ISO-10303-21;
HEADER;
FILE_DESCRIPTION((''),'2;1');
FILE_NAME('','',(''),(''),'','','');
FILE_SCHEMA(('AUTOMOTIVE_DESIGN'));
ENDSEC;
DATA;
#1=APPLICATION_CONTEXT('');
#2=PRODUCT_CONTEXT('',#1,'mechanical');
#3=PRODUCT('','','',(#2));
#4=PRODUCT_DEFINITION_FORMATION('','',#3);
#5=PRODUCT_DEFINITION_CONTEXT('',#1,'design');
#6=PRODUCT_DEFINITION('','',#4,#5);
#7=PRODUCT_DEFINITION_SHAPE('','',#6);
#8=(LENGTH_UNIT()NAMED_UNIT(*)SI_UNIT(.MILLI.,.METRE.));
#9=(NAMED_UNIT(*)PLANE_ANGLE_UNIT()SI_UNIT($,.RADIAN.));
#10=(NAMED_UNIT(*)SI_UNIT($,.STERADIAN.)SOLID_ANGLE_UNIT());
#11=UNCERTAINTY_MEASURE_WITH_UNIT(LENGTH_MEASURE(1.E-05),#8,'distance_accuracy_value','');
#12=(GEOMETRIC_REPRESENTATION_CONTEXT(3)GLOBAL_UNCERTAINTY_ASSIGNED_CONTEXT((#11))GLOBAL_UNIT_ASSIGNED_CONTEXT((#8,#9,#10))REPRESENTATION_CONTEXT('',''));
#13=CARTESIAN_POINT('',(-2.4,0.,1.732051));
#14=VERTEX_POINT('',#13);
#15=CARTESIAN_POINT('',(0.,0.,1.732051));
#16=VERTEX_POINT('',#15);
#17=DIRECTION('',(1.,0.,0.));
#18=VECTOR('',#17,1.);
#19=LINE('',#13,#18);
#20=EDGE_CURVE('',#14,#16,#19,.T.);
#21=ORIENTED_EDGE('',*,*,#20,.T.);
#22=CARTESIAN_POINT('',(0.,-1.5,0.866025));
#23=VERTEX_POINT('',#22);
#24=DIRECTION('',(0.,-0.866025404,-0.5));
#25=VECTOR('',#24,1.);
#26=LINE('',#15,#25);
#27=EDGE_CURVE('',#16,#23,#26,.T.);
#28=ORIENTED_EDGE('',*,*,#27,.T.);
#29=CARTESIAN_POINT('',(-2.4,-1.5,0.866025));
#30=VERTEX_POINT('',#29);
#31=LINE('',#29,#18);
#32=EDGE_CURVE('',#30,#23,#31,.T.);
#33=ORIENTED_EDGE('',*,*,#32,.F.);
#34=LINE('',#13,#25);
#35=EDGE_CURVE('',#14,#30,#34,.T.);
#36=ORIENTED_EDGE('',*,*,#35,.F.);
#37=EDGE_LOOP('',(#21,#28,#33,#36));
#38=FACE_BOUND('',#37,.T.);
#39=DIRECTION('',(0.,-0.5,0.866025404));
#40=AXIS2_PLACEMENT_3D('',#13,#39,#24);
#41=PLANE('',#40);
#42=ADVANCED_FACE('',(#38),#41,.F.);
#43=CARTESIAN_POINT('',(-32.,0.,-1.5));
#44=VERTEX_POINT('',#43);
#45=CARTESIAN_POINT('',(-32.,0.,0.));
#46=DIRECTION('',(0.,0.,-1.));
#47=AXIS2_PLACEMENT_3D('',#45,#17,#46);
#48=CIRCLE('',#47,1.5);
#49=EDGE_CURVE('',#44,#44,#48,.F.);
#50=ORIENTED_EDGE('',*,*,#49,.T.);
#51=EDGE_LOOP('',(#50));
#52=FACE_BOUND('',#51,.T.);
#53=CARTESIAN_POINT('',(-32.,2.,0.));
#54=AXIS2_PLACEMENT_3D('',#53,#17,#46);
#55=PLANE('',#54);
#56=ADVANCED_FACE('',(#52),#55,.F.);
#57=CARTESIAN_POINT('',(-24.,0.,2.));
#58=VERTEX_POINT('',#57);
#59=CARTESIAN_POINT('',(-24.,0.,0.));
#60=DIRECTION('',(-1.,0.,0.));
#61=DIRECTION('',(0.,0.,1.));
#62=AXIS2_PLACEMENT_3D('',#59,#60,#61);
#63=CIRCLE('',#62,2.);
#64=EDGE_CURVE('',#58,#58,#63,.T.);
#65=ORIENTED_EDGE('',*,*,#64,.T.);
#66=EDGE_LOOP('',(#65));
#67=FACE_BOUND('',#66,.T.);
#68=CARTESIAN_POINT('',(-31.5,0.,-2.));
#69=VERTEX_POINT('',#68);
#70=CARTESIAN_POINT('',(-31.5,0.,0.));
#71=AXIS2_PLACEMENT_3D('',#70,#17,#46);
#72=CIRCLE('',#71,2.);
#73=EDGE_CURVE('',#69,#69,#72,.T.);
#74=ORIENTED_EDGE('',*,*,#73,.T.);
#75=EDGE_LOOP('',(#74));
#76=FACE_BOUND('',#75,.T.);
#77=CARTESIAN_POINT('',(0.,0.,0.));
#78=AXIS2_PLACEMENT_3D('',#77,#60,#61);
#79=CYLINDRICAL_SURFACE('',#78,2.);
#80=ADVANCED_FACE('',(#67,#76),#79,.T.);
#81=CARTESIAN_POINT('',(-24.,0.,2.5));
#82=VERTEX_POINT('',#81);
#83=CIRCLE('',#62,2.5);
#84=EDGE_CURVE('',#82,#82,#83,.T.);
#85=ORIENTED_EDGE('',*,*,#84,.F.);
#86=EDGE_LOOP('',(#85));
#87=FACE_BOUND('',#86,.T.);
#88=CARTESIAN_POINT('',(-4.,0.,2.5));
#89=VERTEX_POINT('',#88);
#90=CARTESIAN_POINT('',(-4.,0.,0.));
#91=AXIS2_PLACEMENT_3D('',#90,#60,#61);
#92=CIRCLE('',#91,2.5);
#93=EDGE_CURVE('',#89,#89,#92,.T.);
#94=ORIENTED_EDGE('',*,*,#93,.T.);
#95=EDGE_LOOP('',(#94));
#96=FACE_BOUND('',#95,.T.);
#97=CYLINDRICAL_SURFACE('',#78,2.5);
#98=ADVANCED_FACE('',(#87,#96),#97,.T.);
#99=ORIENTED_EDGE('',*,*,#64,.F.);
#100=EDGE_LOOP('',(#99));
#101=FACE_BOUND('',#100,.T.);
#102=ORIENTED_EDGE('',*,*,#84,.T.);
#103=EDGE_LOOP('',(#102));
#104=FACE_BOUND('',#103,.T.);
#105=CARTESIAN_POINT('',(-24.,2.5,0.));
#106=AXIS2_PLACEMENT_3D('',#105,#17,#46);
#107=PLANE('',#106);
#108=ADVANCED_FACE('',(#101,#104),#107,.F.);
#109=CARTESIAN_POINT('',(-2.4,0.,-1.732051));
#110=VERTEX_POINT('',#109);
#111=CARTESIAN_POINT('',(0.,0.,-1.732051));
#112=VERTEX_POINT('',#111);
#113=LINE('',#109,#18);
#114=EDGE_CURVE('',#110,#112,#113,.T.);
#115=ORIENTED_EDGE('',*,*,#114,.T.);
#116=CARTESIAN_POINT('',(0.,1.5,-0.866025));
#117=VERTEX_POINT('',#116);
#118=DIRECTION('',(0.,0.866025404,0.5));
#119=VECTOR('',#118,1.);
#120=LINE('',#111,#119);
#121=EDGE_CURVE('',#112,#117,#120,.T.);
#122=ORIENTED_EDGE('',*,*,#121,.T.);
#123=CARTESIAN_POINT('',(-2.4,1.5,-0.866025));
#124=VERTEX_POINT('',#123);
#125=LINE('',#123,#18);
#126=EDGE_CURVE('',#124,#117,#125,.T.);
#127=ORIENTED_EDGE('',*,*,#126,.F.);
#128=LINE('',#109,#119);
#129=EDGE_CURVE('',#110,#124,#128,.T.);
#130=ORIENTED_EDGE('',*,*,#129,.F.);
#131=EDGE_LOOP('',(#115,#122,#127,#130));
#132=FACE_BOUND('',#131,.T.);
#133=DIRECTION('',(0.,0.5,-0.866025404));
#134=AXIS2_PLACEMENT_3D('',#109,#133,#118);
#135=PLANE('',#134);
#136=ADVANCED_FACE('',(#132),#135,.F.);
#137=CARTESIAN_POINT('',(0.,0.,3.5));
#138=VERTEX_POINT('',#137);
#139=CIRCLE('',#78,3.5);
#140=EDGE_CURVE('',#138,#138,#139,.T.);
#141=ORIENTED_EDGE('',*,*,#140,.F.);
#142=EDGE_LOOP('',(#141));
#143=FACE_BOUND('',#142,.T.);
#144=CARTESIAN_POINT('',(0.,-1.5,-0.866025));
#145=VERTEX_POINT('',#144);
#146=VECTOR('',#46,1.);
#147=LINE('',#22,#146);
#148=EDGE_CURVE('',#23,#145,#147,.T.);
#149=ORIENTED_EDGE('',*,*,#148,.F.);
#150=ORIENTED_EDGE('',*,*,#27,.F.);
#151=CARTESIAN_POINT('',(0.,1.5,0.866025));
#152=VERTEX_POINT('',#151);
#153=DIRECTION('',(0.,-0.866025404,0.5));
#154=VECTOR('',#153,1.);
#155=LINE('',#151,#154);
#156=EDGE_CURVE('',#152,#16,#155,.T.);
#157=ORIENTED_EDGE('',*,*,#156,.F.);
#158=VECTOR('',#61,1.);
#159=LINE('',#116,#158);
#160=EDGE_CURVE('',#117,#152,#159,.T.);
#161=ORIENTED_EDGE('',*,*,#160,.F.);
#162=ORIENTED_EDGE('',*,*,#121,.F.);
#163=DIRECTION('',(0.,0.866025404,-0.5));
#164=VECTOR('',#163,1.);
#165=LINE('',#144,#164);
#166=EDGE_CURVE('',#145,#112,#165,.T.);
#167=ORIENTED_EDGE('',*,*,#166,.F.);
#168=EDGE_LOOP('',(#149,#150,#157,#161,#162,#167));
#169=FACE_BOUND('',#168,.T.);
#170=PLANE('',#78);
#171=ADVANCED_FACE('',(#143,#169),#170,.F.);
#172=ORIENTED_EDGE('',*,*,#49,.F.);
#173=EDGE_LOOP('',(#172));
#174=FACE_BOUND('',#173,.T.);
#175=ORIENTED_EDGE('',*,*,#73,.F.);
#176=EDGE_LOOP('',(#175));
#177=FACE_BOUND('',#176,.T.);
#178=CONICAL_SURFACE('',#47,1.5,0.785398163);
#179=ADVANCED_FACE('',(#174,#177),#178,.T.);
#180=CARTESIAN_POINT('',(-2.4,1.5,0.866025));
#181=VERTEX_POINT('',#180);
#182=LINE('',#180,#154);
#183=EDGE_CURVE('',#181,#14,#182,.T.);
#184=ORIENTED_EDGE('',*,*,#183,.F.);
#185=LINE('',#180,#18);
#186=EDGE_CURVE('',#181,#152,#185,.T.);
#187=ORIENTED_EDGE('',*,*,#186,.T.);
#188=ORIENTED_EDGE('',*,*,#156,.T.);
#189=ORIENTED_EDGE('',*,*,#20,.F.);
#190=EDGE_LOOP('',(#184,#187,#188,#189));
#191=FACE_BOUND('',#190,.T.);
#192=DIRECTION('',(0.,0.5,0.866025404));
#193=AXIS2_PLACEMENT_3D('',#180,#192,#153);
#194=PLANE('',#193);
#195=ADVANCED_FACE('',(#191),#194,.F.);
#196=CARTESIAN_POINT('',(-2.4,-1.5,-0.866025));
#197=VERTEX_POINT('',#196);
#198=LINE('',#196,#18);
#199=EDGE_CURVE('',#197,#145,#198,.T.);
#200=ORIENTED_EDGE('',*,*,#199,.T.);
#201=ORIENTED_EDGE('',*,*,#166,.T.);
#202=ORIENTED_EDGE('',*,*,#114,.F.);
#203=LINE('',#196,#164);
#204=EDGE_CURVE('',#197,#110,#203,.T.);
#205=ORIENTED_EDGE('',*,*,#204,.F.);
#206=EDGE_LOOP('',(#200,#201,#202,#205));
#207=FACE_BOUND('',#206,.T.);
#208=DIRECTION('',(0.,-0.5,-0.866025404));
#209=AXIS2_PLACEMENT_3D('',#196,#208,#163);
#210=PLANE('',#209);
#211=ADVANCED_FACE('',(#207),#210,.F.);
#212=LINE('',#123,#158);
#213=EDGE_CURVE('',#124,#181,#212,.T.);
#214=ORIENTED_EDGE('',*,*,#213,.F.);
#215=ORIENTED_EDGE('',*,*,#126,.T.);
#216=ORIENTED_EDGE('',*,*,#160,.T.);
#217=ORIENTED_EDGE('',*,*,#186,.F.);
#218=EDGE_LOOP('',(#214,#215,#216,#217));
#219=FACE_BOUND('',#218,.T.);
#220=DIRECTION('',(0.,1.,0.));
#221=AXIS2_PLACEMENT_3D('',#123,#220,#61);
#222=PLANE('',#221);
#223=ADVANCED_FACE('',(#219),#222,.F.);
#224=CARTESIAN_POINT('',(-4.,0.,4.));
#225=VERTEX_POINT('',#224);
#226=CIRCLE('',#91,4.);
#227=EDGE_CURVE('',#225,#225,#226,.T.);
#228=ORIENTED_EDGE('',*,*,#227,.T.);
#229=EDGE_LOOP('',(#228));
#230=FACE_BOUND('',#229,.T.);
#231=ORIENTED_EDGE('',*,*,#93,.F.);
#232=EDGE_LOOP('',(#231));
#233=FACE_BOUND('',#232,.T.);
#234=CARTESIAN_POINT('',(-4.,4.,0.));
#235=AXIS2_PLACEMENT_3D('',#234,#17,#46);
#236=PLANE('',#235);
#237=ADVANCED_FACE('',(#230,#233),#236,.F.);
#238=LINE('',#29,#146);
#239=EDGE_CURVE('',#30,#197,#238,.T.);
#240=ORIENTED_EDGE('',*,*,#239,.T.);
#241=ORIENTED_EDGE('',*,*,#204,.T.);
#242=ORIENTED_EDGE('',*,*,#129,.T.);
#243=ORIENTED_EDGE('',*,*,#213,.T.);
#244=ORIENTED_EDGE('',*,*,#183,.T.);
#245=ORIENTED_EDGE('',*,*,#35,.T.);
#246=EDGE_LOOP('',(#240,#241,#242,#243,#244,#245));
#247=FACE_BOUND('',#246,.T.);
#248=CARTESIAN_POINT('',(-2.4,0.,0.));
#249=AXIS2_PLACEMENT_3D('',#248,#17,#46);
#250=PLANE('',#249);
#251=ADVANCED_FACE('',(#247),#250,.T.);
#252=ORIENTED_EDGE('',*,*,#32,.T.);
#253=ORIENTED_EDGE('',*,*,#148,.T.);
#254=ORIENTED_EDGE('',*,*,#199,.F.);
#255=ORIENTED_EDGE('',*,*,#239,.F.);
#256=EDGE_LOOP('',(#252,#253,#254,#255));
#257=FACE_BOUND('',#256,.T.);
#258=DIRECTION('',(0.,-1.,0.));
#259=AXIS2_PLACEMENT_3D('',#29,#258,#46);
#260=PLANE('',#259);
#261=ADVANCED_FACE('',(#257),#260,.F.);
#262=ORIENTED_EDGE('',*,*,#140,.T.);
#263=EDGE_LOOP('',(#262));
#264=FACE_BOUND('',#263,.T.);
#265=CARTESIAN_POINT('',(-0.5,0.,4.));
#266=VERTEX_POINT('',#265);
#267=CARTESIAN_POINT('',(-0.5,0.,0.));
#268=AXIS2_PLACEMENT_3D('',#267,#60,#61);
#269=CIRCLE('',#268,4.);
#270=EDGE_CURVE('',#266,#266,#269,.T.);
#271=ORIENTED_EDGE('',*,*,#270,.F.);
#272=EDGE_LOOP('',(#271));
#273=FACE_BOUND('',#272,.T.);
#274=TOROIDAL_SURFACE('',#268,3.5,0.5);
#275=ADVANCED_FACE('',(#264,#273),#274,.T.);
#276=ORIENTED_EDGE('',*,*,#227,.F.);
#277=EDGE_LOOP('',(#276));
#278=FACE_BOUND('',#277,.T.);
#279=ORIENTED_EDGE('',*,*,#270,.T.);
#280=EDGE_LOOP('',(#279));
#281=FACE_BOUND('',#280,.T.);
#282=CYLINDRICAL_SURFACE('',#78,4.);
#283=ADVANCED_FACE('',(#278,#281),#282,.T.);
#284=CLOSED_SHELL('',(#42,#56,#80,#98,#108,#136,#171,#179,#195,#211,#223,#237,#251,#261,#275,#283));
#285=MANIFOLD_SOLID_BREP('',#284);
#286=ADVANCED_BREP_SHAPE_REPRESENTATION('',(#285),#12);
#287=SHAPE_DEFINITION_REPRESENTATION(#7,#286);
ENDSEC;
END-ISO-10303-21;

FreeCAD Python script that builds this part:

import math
import FreeCAD as App
import Part
import Sketcher
Q = App.Units.Quantity


def edges_at(feature, points):
    """Names of the edges that pass closest to the given points."""
    edges = feature.Shape.Edges
    near = lambda p: min(range(len(edges)), key=lambda i: edges[i].distToShape(Part.Vertex(*p))[0])
    return sorted({f"Edge{near(p) + 1}" for p in points})

doc = App.newDocument("Part")
body = doc.addObject("PartDesign::Body", "Body")

sketch1 = body.newObject("Sketcher::SketchObject", "Sketch")
sketch1.AttachmentSupport = (doc.getObject("XY_Plane"), [""])
sketch1.MapMode = "FlatFace"
sketch1.addGeometry([
    Part.LineSegment(App.Vector(0, 0, 0), App.Vector(0, 3.5, 0)),
    Part.ArcOfCircle(Part.Circle(App.Vector(-0.5, 3.5, 0), App.Vector(0, 0, 1), 0.5), math.radians(0), math.radians(90)),
    Part.LineSegment(App.Vector(-0.5, 4, 0), App.Vector(-4, 4, 0)),
    Part.LineSegment(App.Vector(-4, 4, 0), App.Vector(-4, 2.5, 0)),
    Part.LineSegment(App.Vector(-4, 2.5, 0), App.Vector(-24, 2.5, 0)),
    Part.LineSegment(App.Vector(-24, 2.5, 0), App.Vector(-24, 2, 0)),
    Part.LineSegment(App.Vector(-24, 2, 0), App.Vector(-32, 2, 0)),
    Part.LineSegment(App.Vector(-32, 2, 0), App.Vector(-32, 0, 0)),
    Part.LineSegment(App.Vector(-32, 0, 0), App.Vector(0, 0, 0)),
], False)
sketch1.addConstraint([
    Sketcher.Constraint("Tangent", 0, 2, 1, 1),
    Sketcher.Constraint("Tangent", 1, 2, 2, 1),
    Sketcher.Constraint("Coincident", 2, 2, 3, 1),
    Sketcher.Constraint("Coincident", 3, 2, 4, 1),
    Sketcher.Constraint("Coincident", 4, 2, 5, 1),
    Sketcher.Constraint("Coincident", 5, 2, 6, 1),
    Sketcher.Constraint("Coincident", 6, 2, 7, 1),
    Sketcher.Constraint("Coincident", 7, 2, 8, 1),
    Sketcher.Constraint("Coincident", 8, 2, 0, 1),
    Sketcher.Constraint("Vertical", 0),
    Sketcher.Constraint("Horizontal", 2),
    Sketcher.Constraint("Vertical", 3),
    Sketcher.Constraint("Horizontal", 4),
    Sketcher.Constraint("Vertical", 5),
    Sketcher.Constraint("Horizontal", 6),
    Sketcher.Constraint("Vertical", 7),
    Sketcher.Constraint("Horizontal", 8),
    Sketcher.Constraint("Coincident", 8, 2, -1, 1),
    Sketcher.Constraint("Equal", 2, 0),
    Sketcher.Constraint("Radius", 1, 0.5),
    Sketcher.Constraint("DistanceX", 4, 2, 4, 1, 20.0),
    Sketcher.Constraint("DistanceX", 6, 2, 6, 1, 8.0),
    Sketcher.Constraint("DistanceX", 8, 1, 8, 2, 32.0),
    Sketcher.Constraint("DistanceY", 7, 2, 7, 1, 2.0),
    Sketcher.Constraint("DistanceY", 3, 2, 3, 1, 1.5),
])
revolution = body.newObject("PartDesign::Revolution", "Revolution")
revolution.Profile = sketch1
revolution.ReferenceAxis = (sketch1, ["H_Axis"])
revolution.Angle = 360
doc.recompute()

chamfer = body.newObject("PartDesign::Chamfer", "Chamfer")
chamfer.Base = (revolution, edges_at(revolution, [(-32, -2, 0)]))
chamfer.Size = 0.5

sketch2 = body.newObject("Sketcher::SketchObject", "Sketch001")
sketch2.AttachmentSupport = (doc.getObject("YZ_Plane"), [""])
sketch2.MapMode = "FlatFace"
sketch2.addGeometry([
    Part.LineSegment(App.Vector(0, -1.732051, 0), App.Vector(1.5, -0.866025, 0)),
    Part.LineSegment(App.Vector(1.5, -0.866025, 0), App.Vector(1.5, 0.866025, 0)),
    Part.LineSegment(App.Vector(1.5, 0.866025, 0), App.Vector(0, 1.732051, 0)),
    Part.LineSegment(App.Vector(0, 1.732051, 0), App.Vector(-1.5, 0.866025, 0)),
    Part.LineSegment(App.Vector(-1.5, 0.866025, 0), App.Vector(-1.5, -0.866025, 0)),
    Part.LineSegment(App.Vector(-1.5, -0.866025, 0), App.Vector(0, -1.732051, 0)),
], False)
sketch2.addConstraint([
    Sketcher.Constraint("Coincident", 0, 2, 1, 1),
    Sketcher.Constraint("Coincident", 1, 2, 2, 1),
    Sketcher.Constraint("Coincident", 2, 2, 3, 1),
    Sketcher.Constraint("Coincident", 3, 2, 4, 1),
    Sketcher.Constraint("Coincident", 4, 2, 5, 1),
    Sketcher.Constraint("Coincident", 5, 2, 0, 1),
    Sketcher.Constraint("Vertical", 1),
    Sketcher.Constraint("Vertical", 4),
    Sketcher.Constraint("Symmetric", 0, 2, 3, 2, -1, 1),
    Sketcher.Constraint("Symmetric", 2, 2, 5, 2, -1, 1),
    Sketcher.Constraint("PointOnObject", 2, 2, -2),
    Sketcher.Constraint("Parallel", 2, 5),
    Sketcher.Constraint("Horizontal", 1, 2, 3, 2),
    Sketcher.Constraint("Angle", 0, Q("30 deg")),
    Sketcher.Constraint("DistanceX", 3, 2, 1, 2, 3.0),
    Sketcher.Constraint("DistanceY", 1, 1, 1, 2, 1.732051),
])
pocket1 = body.newObject("PartDesign::Pocket", "Pocket")
pocket1.Profile = sketch2
pocket1.Length = 2.4

doc.recompute()
